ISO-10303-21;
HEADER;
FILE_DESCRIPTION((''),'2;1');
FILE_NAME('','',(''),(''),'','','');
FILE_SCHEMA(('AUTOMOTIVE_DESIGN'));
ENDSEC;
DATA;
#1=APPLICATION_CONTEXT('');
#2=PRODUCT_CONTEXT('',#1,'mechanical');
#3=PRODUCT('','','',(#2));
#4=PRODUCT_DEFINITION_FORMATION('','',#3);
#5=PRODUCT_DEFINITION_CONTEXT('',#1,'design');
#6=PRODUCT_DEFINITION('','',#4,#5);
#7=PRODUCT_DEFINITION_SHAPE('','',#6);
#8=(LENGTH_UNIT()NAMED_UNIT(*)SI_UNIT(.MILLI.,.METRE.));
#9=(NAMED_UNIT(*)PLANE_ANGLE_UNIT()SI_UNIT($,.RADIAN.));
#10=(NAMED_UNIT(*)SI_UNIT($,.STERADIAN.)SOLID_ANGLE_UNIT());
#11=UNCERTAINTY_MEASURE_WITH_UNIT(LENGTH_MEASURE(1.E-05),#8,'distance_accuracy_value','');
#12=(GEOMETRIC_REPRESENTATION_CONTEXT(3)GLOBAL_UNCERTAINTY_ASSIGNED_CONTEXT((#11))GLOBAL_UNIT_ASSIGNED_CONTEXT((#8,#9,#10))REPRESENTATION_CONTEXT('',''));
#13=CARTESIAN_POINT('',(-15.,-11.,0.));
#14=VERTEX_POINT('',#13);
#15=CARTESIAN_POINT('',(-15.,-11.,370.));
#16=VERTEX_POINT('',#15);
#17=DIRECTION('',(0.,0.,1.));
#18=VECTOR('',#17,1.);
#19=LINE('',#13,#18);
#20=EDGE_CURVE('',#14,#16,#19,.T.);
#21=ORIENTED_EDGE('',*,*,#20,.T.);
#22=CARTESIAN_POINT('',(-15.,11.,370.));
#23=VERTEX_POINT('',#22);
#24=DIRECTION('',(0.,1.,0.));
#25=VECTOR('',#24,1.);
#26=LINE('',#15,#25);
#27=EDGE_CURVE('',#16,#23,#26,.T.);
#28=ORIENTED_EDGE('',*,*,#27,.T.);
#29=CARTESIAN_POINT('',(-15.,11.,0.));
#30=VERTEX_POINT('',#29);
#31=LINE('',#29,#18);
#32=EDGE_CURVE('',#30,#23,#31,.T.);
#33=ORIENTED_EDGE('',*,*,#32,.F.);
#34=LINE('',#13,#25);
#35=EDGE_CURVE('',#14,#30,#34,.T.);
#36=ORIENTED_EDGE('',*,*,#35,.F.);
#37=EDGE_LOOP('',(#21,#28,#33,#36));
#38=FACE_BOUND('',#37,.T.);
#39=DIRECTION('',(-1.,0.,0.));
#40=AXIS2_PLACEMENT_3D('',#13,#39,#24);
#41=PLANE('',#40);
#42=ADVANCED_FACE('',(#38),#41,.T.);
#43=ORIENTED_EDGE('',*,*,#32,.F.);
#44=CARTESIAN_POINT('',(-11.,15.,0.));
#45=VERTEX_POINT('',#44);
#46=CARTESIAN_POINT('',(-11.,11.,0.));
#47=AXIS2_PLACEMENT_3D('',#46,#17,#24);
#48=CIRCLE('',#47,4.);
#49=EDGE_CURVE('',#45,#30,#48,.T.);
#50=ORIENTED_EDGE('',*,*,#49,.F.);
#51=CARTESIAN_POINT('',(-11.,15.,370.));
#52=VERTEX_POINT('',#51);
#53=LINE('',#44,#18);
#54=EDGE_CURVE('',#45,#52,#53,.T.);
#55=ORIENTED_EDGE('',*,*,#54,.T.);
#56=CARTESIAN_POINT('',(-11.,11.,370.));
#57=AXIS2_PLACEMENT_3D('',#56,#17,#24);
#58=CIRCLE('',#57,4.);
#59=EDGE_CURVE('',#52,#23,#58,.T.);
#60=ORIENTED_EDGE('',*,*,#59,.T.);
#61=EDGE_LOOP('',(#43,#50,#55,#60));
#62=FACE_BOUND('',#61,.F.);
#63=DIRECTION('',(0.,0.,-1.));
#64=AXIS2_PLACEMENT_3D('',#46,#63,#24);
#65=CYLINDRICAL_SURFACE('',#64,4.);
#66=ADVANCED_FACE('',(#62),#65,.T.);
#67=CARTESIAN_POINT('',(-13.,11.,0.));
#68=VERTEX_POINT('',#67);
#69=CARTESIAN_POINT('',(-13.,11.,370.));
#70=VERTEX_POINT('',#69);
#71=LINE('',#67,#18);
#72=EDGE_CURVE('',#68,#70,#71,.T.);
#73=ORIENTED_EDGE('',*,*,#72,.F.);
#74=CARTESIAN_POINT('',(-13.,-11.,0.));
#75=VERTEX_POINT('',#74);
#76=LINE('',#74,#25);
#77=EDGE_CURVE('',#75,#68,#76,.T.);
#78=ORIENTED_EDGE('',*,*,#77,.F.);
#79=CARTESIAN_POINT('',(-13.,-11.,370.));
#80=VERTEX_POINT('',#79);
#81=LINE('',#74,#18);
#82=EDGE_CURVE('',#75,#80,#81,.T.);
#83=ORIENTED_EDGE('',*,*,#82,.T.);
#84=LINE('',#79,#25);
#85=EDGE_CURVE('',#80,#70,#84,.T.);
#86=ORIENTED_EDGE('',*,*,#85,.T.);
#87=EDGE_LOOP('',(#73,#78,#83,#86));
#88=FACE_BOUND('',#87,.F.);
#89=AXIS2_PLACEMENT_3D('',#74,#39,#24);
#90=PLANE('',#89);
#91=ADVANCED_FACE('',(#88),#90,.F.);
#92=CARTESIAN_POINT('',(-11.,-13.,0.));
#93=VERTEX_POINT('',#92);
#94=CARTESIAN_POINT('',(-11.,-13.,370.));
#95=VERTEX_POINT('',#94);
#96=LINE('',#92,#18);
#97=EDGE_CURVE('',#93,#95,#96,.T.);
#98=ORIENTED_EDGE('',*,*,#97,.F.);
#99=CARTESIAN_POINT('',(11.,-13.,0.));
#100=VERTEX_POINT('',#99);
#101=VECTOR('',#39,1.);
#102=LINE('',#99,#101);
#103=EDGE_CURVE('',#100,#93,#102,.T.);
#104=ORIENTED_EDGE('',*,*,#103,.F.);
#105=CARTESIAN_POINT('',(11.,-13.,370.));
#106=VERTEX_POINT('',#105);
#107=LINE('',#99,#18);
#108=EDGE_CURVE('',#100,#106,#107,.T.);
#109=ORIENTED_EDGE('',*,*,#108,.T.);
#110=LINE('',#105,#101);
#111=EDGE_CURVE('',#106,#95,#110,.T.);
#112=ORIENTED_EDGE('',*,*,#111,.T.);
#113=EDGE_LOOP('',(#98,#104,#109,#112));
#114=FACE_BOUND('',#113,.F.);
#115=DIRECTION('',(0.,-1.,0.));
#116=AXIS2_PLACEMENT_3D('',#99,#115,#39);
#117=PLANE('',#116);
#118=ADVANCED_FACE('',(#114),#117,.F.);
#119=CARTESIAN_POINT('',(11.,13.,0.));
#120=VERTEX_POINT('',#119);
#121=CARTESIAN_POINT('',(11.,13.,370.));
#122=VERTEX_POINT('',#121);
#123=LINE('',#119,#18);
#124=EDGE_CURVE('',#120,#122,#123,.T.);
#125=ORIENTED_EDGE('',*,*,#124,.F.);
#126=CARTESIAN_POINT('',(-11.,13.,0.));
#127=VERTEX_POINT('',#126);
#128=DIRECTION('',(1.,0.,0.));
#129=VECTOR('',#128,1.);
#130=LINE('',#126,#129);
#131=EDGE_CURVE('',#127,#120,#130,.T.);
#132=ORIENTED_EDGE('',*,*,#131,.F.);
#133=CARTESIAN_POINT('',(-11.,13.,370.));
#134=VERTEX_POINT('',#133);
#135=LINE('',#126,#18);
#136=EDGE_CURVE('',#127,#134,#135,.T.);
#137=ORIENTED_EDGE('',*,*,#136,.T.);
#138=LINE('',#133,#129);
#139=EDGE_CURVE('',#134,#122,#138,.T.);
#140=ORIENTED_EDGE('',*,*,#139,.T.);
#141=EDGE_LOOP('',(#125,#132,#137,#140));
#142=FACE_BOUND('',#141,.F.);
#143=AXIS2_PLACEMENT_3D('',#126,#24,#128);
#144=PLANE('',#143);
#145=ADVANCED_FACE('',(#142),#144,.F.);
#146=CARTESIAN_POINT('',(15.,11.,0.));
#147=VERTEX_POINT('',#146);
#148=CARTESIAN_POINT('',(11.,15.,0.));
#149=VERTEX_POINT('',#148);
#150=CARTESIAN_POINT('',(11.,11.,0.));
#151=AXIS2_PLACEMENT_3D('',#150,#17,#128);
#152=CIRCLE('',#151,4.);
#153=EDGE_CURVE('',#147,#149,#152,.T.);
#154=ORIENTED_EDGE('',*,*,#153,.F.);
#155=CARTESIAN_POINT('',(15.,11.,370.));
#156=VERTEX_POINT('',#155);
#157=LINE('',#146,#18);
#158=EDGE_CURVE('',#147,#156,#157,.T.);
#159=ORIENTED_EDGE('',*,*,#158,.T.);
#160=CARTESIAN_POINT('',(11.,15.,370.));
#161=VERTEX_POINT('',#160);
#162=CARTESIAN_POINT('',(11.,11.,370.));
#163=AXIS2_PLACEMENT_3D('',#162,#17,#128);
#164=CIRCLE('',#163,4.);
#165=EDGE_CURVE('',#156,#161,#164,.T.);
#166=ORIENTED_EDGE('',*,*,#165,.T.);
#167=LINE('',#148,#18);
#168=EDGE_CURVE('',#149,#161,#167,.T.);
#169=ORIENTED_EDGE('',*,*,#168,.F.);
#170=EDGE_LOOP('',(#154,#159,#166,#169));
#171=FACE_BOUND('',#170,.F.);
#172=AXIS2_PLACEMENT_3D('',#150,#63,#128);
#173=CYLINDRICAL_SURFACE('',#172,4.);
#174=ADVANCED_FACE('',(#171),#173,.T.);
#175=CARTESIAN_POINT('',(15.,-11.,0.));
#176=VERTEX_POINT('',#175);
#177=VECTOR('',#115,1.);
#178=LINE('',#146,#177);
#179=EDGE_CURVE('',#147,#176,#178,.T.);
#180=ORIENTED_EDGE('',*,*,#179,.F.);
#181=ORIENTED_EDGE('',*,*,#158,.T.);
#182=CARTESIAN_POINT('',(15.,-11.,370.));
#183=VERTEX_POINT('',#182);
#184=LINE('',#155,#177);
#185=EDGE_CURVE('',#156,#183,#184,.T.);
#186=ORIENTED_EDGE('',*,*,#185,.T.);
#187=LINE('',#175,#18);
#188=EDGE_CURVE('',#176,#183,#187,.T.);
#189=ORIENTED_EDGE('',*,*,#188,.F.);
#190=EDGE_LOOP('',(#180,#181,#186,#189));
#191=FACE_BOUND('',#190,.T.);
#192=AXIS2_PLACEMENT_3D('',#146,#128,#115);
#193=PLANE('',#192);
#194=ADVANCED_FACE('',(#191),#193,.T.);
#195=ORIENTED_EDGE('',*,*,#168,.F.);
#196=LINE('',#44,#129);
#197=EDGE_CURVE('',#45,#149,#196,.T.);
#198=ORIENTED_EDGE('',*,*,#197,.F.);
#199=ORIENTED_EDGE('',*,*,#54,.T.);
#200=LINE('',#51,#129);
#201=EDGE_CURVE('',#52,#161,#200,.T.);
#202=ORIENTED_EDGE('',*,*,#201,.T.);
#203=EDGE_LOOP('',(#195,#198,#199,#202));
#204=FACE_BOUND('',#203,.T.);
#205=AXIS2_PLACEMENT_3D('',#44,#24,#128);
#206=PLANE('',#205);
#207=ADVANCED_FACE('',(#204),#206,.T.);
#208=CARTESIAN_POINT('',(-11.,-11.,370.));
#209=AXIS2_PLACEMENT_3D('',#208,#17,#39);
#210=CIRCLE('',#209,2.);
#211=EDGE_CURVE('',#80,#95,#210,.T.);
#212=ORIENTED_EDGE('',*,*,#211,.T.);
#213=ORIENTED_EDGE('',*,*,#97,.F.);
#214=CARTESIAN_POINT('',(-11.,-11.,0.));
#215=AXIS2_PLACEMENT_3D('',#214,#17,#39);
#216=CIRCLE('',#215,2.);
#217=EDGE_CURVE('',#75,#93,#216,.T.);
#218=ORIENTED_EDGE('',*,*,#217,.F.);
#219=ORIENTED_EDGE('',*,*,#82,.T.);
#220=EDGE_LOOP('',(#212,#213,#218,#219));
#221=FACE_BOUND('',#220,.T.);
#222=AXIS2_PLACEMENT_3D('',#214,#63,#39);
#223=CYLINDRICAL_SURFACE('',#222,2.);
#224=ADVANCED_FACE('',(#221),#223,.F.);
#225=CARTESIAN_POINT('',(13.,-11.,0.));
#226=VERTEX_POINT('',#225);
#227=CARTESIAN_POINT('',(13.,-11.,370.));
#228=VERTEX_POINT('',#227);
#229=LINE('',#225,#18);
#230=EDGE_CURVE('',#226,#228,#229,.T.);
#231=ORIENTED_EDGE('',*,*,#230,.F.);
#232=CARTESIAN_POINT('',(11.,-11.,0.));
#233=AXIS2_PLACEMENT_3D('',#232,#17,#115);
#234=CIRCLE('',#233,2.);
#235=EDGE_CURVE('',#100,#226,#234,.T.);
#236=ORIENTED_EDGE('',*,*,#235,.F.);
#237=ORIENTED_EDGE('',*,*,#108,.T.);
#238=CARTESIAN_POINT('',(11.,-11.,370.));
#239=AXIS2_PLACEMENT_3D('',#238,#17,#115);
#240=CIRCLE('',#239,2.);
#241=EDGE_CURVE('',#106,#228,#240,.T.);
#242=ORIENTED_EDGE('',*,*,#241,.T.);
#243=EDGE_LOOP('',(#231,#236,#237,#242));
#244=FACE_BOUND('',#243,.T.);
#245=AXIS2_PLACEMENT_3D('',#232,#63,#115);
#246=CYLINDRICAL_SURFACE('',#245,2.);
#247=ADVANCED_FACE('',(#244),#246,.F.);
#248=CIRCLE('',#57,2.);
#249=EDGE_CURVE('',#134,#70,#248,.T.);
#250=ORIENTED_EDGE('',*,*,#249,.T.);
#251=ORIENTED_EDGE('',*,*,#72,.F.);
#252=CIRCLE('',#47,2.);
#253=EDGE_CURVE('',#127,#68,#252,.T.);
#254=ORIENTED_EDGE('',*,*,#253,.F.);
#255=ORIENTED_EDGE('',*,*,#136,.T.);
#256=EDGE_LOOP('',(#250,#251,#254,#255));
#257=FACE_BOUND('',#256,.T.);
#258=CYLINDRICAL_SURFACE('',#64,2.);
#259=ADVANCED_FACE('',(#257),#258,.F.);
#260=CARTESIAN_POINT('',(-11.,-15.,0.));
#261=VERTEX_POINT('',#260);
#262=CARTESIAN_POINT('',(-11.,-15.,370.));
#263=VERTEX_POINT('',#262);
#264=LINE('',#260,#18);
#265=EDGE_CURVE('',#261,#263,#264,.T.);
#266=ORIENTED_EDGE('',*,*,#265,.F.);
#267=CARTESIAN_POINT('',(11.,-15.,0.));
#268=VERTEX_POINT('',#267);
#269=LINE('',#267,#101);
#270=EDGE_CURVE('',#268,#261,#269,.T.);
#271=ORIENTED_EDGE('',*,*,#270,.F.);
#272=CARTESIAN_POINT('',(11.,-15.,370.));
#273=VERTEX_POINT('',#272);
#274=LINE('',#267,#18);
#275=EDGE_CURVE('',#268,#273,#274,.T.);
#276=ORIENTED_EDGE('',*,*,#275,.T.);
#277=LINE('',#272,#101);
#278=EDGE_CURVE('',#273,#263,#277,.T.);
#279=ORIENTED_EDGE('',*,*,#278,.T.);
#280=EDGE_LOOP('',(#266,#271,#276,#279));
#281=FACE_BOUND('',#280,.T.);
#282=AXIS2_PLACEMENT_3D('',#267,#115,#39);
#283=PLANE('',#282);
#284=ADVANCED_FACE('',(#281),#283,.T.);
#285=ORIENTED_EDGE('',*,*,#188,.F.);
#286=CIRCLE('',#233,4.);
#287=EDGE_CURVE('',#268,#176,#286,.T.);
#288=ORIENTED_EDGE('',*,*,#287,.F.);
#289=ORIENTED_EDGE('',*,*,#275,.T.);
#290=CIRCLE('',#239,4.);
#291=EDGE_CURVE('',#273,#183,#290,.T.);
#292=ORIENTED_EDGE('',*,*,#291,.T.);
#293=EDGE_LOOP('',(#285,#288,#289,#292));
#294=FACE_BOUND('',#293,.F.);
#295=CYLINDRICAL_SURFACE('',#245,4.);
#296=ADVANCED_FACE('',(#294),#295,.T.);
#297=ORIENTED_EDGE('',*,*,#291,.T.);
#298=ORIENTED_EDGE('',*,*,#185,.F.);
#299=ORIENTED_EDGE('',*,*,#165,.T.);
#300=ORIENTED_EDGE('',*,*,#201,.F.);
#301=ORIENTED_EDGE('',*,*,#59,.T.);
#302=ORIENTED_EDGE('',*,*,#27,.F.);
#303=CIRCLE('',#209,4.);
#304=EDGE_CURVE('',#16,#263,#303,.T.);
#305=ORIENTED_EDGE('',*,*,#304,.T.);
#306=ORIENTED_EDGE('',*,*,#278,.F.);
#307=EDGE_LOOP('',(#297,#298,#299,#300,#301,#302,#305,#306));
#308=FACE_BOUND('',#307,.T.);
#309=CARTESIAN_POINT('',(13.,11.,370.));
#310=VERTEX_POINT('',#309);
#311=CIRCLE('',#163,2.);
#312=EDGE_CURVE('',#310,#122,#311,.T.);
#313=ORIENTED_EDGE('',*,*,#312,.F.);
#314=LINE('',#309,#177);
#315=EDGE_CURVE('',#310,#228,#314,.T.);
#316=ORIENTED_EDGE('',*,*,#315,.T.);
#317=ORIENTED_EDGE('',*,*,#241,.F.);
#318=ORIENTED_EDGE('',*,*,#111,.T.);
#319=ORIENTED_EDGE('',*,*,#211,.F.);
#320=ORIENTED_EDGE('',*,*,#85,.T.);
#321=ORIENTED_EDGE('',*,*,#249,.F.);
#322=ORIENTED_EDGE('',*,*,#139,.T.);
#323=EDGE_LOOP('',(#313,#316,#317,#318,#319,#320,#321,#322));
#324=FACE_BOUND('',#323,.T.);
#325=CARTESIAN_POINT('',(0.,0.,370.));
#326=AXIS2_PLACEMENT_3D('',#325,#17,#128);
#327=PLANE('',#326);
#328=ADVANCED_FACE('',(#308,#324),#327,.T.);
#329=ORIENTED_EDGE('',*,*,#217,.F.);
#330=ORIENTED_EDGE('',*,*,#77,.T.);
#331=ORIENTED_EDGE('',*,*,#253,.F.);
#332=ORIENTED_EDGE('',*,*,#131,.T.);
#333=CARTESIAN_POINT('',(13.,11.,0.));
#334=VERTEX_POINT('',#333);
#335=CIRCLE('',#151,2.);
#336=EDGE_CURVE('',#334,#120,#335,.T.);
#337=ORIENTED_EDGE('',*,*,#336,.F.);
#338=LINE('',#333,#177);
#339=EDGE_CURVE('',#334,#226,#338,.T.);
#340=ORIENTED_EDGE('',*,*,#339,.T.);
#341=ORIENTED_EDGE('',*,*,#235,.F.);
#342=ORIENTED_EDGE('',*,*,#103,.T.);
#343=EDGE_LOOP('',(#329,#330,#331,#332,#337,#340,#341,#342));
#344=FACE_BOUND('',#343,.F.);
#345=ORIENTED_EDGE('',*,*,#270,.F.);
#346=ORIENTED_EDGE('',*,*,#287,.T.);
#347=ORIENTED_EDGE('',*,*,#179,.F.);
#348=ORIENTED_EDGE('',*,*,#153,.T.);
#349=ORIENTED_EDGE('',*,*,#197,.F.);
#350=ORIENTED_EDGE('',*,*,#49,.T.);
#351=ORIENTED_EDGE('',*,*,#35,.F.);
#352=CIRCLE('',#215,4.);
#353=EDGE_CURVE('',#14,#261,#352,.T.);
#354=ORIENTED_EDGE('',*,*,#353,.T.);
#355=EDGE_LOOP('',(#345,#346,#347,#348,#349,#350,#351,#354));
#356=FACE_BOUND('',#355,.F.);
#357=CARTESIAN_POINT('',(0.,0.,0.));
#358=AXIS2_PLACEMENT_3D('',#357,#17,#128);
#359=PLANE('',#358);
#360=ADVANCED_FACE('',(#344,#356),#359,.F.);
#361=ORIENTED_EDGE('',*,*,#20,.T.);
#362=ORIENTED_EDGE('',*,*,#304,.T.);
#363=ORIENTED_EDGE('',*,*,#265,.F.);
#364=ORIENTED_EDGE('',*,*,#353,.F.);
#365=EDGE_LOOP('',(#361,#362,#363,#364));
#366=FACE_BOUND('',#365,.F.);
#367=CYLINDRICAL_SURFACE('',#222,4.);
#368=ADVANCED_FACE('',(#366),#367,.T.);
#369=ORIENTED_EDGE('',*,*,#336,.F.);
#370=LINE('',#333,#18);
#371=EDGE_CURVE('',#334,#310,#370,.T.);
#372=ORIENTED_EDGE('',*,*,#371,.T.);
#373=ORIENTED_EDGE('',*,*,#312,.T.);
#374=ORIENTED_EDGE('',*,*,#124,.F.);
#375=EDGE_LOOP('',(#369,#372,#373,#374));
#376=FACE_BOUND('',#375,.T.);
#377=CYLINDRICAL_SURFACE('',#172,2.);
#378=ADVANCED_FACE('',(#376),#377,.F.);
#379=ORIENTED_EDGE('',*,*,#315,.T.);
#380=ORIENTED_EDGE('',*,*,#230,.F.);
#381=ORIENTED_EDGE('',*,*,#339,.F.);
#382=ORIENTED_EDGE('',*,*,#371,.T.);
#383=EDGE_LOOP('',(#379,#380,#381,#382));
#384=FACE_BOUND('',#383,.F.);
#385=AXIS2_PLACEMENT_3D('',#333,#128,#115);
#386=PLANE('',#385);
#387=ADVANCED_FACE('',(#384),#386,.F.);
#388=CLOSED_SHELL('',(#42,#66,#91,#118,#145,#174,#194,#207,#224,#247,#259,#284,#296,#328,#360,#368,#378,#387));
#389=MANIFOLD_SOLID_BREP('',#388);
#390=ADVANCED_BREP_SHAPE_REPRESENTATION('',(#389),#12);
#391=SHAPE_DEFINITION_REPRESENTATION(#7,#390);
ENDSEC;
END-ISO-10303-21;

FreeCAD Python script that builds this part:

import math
import FreeCAD as App
import Part
import Sketcher

V = App.Vector
Q = App.Units.Quantity

doc = App.newDocument("Part")
body = doc.addObject("PartDesign::Body", "Body")

# Sketch on XY plane
sketch1 = doc.addObject("Sketcher::SketchObject", "Sketch")
body.addObject(sketch1)
sketch1.AttachmentSupport = (doc.XY_Plane, [""])
sketch1.MapMode = "FlatFace"
sketch1.addGeometry(Part.LineSegment(V(-15, 11, 0), V(-15, -11, 0)), False)
sketch1.addGeometry(Part.ArcOfCircle(Part.Circle(V(-11, -11, 0), V(0, 0, 1), 4), math.radians(180), math.radians(270)), False)
sketch1.addGeometry(Part.LineSegment(V(-11, -15, 0), V(11, -15, 0)), False)
sketch1.addGeometry(Part.ArcOfCircle(Part.Circle(V(11, -11, 0), V(0, 0, 1), 4), math.radians(-90), math.radians(0)), False)
sketch1.addGeometry(Part.LineSegment(V(15, -11, 0), V(15, 11, 0)), False)
sketch1.addGeometry(Part.ArcOfCircle(Part.Circle(V(11, 11, 0), V(0, 0, 1), 4), math.radians(0), math.radians(90)), False)
sketch1.addGeometry(Part.LineSegment(V(11, 15, 0), V(-11, 15, 0)), False)
sketch1.addGeometry(Part.ArcOfCircle(Part.Circle(V(-11, 11, 0), V(0, 0, 1), 4), math.radians(90), math.radians(180)), False)
sketch1.addGeometry(Part.ArcOfCircle(Part.Circle(V(-11, 11, 0), V(0, 0, 1), 2), math.radians(90), math.radians(180)), False)
sketch1.addGeometry(Part.LineSegment(V(-11, 13, 0), V(11, 13, 0)), False)
sketch1.addGeometry(Part.ArcOfCircle(Part.Circle(V(11, 11, 0), V(0, 0, 1), 2), math.radians(0), math.radians(90)), False)
sketch1.addGeometry(Part.LineSegment(V(13, 11, 0), V(13, -11, 0)), False)
sketch1.addGeometry(Part.ArcOfCircle(Part.Circle(V(11, -11, 0), V(0, 0, 1), 2), math.radians(-90), math.radians(0)), False)
sketch1.addGeometry(Part.LineSegment(V(11, -13, 0), V(-11, -13, 0)), False)
sketch1.addGeometry(Part.ArcOfCircle(Part.Circle(V(-11, -11, 0), V(0, 0, 1), 2), math.radians(180), math.radians(270)), False)
sketch1.addGeometry(Part.LineSegment(V(-13, -11, 0), V(-13, 11, 0)), False)
sketch1.addConstraint(Sketcher.Constraint("Tangent", 0, 2, 1, 1))
sketch1.addConstraint(Sketcher.Constraint("Tangent", 1, 2, 2, 1))
sketch1.addConstraint(Sketcher.Constraint("Tangent", 2, 2, 3, 1))
sketch1.addConstraint(Sketcher.Constraint("Tangent", 3, 2, 4, 1))
sketch1.addConstraint(Sketcher.Constraint("Tangent", 4, 2, 5, 1))
sketch1.addConstraint(Sketcher.Constraint("Tangent", 5, 2, 6, 1))
sketch1.addConstraint(Sketcher.Constraint("Tangent", 6, 2, 7, 1))
sketch1.addConstraint(Sketcher.Constraint("Tangent", 7, 2, 0, 1))
sketch1.addConstraint(Sketcher.Constraint("Tangent", 8, 1, 9, 1))
sketch1.addConstraint(Sketcher.Constraint("Tangent", 9, 2, 10, 2))
sketch1.addConstraint(Sketcher.Constraint("Tangent", 10, 1, 11, 1))
sketch1.addConstraint(Sketcher.Constraint("Tangent", 11, 2, 12, 2))
sketch1.addConstraint(Sketcher.Constraint("Tangent", 12, 1, 13, 1))
sketch1.addConstraint(Sketcher.Constraint("Tangent", 13, 2, 14, 2))
sketch1.addConstraint(Sketcher.Constraint("Tangent", 14, 1, 15, 1))
sketch1.addConstraint(Sketcher.Constraint("Tangent", 15, 2, 8, 2))
sketch1.addConstraint(Sketcher.Constraint("Vertical", 0))
sketch1.addConstraint(Sketcher.Constraint("Horizontal", 2))
sketch1.addConstraint(Sketcher.Constraint("Vertical", 4))
sketch1.addConstraint(Sketcher.Constraint("Horizontal", 6))
sketch1.addConstraint(Sketcher.Constraint("Horizontal", 9))
sketch1.addConstraint(Sketcher.Constraint("Vertical", 11))
sketch1.addConstraint(Sketcher.Constraint("Horizontal", 13))
sketch1.addConstraint(Sketcher.Constraint("Vertical", 15))
sketch1.addConstraint(Sketcher.Constraint("Coincident", 8, 3, 7, 3))
sketch1.addConstraint(Sketcher.Constraint("Coincident", 10, 3, 5, 3))
sketch1.addConstraint(Sketcher.Constraint("Coincident", 12, 3, 3, 3))
sketch1.addConstraint(Sketcher.Constraint("Equal", 1, 3))
sketch1.addConstraint(Sketcher.Constraint("Equal", 3, 5))
sketch1.addConstraint(Sketcher.Constraint("Equal", 5, 7))
sketch1.addConstraint(Sketcher.Constraint("Equal", 12, 14))
sketch1.addConstraint(Sketcher.Constraint("Symmetric", 1, 3, 5, 3, -1, 1))
sketch1.addConstraint(Sketcher.Constraint("Equal", 13, 0))
sketch1.addConstraint(Sketcher.Constraint("Radius", 1, Q("4 mm")))
sketch1.addConstraint(Sketcher.Constraint("Radius", 8, Q("2 mm")))
sketch1.addConstraint(Sketcher.Constraint("DistanceX", 0, 2, -1, 1, Q("15 mm")))
pad1 = doc.addObject("PartDesign::Pad", "Pad")
body.addObject(pad1)
pad1.Profile = sketch1
pad1.Length = 370

doc.recompute()
